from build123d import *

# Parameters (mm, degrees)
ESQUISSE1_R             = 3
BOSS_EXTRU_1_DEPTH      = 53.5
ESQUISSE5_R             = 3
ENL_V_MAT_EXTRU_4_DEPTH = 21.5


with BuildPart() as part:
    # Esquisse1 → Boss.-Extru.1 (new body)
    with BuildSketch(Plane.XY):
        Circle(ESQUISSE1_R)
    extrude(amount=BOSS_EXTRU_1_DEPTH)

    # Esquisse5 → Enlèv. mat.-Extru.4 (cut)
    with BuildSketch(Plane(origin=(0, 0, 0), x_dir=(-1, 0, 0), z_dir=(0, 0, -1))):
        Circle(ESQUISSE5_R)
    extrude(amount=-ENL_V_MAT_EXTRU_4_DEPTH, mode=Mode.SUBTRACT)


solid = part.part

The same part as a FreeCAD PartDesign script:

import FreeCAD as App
import Part
import Sketcher

V = App.Vector

doc = App.newDocument("Part")
body = doc.addObject("PartDesign::Body", "Body")

# Sketch on XY plane
sketch1 = doc.addObject("Sketcher::SketchObject", "Sketch")
body.addObject(sketch1)
sketch1.AttachmentSupport = (doc.XY_Plane, [""])
sketch1.MapMode = "FlatFace"
sketch1.addGeometry(Part.Circle(V(0, 0, 0), V(0, 0, 1), 3), False)
sketch1.addConstraint(Sketcher.Constraint("Coincident", 0, 3, -1, 1))
sketch1.addConstraint(Sketcher.Constraint("Diameter", 0, 6.0))
pad1 = doc.addObject("PartDesign::Pad", "Pad")
body.addObject(pad1)
pad1.Profile = sketch1
pad1.Length = 53.5

# Sketch on XY plane
sketch2 = doc.addObject("Sketcher::SketchObject", "Sketch001")
body.addObject(sketch2)
sketch2.AttachmentSupport = (doc.XY_Plane, [""])
sketch2.MapMode = "FlatFace"
sketch2.addGeometry(Part.Circle(V(0, 0, 0), V(0, 0, 1), 3), False)
sketch2.addConstraint(Sketcher.Constraint("Coincident", 0, 3, -1, 1))
sketch2.addConstraint(Sketcher.Constraint("Diameter", 0, 6.0))
pocket1 = doc.addObject("PartDesign::Pocket", "Pocket")
body.addObject(pocket1)
pocket1.Profile = sketch2
pocket1.Length = 21.5
pocket1.Reversed = True

doc.recompute()
